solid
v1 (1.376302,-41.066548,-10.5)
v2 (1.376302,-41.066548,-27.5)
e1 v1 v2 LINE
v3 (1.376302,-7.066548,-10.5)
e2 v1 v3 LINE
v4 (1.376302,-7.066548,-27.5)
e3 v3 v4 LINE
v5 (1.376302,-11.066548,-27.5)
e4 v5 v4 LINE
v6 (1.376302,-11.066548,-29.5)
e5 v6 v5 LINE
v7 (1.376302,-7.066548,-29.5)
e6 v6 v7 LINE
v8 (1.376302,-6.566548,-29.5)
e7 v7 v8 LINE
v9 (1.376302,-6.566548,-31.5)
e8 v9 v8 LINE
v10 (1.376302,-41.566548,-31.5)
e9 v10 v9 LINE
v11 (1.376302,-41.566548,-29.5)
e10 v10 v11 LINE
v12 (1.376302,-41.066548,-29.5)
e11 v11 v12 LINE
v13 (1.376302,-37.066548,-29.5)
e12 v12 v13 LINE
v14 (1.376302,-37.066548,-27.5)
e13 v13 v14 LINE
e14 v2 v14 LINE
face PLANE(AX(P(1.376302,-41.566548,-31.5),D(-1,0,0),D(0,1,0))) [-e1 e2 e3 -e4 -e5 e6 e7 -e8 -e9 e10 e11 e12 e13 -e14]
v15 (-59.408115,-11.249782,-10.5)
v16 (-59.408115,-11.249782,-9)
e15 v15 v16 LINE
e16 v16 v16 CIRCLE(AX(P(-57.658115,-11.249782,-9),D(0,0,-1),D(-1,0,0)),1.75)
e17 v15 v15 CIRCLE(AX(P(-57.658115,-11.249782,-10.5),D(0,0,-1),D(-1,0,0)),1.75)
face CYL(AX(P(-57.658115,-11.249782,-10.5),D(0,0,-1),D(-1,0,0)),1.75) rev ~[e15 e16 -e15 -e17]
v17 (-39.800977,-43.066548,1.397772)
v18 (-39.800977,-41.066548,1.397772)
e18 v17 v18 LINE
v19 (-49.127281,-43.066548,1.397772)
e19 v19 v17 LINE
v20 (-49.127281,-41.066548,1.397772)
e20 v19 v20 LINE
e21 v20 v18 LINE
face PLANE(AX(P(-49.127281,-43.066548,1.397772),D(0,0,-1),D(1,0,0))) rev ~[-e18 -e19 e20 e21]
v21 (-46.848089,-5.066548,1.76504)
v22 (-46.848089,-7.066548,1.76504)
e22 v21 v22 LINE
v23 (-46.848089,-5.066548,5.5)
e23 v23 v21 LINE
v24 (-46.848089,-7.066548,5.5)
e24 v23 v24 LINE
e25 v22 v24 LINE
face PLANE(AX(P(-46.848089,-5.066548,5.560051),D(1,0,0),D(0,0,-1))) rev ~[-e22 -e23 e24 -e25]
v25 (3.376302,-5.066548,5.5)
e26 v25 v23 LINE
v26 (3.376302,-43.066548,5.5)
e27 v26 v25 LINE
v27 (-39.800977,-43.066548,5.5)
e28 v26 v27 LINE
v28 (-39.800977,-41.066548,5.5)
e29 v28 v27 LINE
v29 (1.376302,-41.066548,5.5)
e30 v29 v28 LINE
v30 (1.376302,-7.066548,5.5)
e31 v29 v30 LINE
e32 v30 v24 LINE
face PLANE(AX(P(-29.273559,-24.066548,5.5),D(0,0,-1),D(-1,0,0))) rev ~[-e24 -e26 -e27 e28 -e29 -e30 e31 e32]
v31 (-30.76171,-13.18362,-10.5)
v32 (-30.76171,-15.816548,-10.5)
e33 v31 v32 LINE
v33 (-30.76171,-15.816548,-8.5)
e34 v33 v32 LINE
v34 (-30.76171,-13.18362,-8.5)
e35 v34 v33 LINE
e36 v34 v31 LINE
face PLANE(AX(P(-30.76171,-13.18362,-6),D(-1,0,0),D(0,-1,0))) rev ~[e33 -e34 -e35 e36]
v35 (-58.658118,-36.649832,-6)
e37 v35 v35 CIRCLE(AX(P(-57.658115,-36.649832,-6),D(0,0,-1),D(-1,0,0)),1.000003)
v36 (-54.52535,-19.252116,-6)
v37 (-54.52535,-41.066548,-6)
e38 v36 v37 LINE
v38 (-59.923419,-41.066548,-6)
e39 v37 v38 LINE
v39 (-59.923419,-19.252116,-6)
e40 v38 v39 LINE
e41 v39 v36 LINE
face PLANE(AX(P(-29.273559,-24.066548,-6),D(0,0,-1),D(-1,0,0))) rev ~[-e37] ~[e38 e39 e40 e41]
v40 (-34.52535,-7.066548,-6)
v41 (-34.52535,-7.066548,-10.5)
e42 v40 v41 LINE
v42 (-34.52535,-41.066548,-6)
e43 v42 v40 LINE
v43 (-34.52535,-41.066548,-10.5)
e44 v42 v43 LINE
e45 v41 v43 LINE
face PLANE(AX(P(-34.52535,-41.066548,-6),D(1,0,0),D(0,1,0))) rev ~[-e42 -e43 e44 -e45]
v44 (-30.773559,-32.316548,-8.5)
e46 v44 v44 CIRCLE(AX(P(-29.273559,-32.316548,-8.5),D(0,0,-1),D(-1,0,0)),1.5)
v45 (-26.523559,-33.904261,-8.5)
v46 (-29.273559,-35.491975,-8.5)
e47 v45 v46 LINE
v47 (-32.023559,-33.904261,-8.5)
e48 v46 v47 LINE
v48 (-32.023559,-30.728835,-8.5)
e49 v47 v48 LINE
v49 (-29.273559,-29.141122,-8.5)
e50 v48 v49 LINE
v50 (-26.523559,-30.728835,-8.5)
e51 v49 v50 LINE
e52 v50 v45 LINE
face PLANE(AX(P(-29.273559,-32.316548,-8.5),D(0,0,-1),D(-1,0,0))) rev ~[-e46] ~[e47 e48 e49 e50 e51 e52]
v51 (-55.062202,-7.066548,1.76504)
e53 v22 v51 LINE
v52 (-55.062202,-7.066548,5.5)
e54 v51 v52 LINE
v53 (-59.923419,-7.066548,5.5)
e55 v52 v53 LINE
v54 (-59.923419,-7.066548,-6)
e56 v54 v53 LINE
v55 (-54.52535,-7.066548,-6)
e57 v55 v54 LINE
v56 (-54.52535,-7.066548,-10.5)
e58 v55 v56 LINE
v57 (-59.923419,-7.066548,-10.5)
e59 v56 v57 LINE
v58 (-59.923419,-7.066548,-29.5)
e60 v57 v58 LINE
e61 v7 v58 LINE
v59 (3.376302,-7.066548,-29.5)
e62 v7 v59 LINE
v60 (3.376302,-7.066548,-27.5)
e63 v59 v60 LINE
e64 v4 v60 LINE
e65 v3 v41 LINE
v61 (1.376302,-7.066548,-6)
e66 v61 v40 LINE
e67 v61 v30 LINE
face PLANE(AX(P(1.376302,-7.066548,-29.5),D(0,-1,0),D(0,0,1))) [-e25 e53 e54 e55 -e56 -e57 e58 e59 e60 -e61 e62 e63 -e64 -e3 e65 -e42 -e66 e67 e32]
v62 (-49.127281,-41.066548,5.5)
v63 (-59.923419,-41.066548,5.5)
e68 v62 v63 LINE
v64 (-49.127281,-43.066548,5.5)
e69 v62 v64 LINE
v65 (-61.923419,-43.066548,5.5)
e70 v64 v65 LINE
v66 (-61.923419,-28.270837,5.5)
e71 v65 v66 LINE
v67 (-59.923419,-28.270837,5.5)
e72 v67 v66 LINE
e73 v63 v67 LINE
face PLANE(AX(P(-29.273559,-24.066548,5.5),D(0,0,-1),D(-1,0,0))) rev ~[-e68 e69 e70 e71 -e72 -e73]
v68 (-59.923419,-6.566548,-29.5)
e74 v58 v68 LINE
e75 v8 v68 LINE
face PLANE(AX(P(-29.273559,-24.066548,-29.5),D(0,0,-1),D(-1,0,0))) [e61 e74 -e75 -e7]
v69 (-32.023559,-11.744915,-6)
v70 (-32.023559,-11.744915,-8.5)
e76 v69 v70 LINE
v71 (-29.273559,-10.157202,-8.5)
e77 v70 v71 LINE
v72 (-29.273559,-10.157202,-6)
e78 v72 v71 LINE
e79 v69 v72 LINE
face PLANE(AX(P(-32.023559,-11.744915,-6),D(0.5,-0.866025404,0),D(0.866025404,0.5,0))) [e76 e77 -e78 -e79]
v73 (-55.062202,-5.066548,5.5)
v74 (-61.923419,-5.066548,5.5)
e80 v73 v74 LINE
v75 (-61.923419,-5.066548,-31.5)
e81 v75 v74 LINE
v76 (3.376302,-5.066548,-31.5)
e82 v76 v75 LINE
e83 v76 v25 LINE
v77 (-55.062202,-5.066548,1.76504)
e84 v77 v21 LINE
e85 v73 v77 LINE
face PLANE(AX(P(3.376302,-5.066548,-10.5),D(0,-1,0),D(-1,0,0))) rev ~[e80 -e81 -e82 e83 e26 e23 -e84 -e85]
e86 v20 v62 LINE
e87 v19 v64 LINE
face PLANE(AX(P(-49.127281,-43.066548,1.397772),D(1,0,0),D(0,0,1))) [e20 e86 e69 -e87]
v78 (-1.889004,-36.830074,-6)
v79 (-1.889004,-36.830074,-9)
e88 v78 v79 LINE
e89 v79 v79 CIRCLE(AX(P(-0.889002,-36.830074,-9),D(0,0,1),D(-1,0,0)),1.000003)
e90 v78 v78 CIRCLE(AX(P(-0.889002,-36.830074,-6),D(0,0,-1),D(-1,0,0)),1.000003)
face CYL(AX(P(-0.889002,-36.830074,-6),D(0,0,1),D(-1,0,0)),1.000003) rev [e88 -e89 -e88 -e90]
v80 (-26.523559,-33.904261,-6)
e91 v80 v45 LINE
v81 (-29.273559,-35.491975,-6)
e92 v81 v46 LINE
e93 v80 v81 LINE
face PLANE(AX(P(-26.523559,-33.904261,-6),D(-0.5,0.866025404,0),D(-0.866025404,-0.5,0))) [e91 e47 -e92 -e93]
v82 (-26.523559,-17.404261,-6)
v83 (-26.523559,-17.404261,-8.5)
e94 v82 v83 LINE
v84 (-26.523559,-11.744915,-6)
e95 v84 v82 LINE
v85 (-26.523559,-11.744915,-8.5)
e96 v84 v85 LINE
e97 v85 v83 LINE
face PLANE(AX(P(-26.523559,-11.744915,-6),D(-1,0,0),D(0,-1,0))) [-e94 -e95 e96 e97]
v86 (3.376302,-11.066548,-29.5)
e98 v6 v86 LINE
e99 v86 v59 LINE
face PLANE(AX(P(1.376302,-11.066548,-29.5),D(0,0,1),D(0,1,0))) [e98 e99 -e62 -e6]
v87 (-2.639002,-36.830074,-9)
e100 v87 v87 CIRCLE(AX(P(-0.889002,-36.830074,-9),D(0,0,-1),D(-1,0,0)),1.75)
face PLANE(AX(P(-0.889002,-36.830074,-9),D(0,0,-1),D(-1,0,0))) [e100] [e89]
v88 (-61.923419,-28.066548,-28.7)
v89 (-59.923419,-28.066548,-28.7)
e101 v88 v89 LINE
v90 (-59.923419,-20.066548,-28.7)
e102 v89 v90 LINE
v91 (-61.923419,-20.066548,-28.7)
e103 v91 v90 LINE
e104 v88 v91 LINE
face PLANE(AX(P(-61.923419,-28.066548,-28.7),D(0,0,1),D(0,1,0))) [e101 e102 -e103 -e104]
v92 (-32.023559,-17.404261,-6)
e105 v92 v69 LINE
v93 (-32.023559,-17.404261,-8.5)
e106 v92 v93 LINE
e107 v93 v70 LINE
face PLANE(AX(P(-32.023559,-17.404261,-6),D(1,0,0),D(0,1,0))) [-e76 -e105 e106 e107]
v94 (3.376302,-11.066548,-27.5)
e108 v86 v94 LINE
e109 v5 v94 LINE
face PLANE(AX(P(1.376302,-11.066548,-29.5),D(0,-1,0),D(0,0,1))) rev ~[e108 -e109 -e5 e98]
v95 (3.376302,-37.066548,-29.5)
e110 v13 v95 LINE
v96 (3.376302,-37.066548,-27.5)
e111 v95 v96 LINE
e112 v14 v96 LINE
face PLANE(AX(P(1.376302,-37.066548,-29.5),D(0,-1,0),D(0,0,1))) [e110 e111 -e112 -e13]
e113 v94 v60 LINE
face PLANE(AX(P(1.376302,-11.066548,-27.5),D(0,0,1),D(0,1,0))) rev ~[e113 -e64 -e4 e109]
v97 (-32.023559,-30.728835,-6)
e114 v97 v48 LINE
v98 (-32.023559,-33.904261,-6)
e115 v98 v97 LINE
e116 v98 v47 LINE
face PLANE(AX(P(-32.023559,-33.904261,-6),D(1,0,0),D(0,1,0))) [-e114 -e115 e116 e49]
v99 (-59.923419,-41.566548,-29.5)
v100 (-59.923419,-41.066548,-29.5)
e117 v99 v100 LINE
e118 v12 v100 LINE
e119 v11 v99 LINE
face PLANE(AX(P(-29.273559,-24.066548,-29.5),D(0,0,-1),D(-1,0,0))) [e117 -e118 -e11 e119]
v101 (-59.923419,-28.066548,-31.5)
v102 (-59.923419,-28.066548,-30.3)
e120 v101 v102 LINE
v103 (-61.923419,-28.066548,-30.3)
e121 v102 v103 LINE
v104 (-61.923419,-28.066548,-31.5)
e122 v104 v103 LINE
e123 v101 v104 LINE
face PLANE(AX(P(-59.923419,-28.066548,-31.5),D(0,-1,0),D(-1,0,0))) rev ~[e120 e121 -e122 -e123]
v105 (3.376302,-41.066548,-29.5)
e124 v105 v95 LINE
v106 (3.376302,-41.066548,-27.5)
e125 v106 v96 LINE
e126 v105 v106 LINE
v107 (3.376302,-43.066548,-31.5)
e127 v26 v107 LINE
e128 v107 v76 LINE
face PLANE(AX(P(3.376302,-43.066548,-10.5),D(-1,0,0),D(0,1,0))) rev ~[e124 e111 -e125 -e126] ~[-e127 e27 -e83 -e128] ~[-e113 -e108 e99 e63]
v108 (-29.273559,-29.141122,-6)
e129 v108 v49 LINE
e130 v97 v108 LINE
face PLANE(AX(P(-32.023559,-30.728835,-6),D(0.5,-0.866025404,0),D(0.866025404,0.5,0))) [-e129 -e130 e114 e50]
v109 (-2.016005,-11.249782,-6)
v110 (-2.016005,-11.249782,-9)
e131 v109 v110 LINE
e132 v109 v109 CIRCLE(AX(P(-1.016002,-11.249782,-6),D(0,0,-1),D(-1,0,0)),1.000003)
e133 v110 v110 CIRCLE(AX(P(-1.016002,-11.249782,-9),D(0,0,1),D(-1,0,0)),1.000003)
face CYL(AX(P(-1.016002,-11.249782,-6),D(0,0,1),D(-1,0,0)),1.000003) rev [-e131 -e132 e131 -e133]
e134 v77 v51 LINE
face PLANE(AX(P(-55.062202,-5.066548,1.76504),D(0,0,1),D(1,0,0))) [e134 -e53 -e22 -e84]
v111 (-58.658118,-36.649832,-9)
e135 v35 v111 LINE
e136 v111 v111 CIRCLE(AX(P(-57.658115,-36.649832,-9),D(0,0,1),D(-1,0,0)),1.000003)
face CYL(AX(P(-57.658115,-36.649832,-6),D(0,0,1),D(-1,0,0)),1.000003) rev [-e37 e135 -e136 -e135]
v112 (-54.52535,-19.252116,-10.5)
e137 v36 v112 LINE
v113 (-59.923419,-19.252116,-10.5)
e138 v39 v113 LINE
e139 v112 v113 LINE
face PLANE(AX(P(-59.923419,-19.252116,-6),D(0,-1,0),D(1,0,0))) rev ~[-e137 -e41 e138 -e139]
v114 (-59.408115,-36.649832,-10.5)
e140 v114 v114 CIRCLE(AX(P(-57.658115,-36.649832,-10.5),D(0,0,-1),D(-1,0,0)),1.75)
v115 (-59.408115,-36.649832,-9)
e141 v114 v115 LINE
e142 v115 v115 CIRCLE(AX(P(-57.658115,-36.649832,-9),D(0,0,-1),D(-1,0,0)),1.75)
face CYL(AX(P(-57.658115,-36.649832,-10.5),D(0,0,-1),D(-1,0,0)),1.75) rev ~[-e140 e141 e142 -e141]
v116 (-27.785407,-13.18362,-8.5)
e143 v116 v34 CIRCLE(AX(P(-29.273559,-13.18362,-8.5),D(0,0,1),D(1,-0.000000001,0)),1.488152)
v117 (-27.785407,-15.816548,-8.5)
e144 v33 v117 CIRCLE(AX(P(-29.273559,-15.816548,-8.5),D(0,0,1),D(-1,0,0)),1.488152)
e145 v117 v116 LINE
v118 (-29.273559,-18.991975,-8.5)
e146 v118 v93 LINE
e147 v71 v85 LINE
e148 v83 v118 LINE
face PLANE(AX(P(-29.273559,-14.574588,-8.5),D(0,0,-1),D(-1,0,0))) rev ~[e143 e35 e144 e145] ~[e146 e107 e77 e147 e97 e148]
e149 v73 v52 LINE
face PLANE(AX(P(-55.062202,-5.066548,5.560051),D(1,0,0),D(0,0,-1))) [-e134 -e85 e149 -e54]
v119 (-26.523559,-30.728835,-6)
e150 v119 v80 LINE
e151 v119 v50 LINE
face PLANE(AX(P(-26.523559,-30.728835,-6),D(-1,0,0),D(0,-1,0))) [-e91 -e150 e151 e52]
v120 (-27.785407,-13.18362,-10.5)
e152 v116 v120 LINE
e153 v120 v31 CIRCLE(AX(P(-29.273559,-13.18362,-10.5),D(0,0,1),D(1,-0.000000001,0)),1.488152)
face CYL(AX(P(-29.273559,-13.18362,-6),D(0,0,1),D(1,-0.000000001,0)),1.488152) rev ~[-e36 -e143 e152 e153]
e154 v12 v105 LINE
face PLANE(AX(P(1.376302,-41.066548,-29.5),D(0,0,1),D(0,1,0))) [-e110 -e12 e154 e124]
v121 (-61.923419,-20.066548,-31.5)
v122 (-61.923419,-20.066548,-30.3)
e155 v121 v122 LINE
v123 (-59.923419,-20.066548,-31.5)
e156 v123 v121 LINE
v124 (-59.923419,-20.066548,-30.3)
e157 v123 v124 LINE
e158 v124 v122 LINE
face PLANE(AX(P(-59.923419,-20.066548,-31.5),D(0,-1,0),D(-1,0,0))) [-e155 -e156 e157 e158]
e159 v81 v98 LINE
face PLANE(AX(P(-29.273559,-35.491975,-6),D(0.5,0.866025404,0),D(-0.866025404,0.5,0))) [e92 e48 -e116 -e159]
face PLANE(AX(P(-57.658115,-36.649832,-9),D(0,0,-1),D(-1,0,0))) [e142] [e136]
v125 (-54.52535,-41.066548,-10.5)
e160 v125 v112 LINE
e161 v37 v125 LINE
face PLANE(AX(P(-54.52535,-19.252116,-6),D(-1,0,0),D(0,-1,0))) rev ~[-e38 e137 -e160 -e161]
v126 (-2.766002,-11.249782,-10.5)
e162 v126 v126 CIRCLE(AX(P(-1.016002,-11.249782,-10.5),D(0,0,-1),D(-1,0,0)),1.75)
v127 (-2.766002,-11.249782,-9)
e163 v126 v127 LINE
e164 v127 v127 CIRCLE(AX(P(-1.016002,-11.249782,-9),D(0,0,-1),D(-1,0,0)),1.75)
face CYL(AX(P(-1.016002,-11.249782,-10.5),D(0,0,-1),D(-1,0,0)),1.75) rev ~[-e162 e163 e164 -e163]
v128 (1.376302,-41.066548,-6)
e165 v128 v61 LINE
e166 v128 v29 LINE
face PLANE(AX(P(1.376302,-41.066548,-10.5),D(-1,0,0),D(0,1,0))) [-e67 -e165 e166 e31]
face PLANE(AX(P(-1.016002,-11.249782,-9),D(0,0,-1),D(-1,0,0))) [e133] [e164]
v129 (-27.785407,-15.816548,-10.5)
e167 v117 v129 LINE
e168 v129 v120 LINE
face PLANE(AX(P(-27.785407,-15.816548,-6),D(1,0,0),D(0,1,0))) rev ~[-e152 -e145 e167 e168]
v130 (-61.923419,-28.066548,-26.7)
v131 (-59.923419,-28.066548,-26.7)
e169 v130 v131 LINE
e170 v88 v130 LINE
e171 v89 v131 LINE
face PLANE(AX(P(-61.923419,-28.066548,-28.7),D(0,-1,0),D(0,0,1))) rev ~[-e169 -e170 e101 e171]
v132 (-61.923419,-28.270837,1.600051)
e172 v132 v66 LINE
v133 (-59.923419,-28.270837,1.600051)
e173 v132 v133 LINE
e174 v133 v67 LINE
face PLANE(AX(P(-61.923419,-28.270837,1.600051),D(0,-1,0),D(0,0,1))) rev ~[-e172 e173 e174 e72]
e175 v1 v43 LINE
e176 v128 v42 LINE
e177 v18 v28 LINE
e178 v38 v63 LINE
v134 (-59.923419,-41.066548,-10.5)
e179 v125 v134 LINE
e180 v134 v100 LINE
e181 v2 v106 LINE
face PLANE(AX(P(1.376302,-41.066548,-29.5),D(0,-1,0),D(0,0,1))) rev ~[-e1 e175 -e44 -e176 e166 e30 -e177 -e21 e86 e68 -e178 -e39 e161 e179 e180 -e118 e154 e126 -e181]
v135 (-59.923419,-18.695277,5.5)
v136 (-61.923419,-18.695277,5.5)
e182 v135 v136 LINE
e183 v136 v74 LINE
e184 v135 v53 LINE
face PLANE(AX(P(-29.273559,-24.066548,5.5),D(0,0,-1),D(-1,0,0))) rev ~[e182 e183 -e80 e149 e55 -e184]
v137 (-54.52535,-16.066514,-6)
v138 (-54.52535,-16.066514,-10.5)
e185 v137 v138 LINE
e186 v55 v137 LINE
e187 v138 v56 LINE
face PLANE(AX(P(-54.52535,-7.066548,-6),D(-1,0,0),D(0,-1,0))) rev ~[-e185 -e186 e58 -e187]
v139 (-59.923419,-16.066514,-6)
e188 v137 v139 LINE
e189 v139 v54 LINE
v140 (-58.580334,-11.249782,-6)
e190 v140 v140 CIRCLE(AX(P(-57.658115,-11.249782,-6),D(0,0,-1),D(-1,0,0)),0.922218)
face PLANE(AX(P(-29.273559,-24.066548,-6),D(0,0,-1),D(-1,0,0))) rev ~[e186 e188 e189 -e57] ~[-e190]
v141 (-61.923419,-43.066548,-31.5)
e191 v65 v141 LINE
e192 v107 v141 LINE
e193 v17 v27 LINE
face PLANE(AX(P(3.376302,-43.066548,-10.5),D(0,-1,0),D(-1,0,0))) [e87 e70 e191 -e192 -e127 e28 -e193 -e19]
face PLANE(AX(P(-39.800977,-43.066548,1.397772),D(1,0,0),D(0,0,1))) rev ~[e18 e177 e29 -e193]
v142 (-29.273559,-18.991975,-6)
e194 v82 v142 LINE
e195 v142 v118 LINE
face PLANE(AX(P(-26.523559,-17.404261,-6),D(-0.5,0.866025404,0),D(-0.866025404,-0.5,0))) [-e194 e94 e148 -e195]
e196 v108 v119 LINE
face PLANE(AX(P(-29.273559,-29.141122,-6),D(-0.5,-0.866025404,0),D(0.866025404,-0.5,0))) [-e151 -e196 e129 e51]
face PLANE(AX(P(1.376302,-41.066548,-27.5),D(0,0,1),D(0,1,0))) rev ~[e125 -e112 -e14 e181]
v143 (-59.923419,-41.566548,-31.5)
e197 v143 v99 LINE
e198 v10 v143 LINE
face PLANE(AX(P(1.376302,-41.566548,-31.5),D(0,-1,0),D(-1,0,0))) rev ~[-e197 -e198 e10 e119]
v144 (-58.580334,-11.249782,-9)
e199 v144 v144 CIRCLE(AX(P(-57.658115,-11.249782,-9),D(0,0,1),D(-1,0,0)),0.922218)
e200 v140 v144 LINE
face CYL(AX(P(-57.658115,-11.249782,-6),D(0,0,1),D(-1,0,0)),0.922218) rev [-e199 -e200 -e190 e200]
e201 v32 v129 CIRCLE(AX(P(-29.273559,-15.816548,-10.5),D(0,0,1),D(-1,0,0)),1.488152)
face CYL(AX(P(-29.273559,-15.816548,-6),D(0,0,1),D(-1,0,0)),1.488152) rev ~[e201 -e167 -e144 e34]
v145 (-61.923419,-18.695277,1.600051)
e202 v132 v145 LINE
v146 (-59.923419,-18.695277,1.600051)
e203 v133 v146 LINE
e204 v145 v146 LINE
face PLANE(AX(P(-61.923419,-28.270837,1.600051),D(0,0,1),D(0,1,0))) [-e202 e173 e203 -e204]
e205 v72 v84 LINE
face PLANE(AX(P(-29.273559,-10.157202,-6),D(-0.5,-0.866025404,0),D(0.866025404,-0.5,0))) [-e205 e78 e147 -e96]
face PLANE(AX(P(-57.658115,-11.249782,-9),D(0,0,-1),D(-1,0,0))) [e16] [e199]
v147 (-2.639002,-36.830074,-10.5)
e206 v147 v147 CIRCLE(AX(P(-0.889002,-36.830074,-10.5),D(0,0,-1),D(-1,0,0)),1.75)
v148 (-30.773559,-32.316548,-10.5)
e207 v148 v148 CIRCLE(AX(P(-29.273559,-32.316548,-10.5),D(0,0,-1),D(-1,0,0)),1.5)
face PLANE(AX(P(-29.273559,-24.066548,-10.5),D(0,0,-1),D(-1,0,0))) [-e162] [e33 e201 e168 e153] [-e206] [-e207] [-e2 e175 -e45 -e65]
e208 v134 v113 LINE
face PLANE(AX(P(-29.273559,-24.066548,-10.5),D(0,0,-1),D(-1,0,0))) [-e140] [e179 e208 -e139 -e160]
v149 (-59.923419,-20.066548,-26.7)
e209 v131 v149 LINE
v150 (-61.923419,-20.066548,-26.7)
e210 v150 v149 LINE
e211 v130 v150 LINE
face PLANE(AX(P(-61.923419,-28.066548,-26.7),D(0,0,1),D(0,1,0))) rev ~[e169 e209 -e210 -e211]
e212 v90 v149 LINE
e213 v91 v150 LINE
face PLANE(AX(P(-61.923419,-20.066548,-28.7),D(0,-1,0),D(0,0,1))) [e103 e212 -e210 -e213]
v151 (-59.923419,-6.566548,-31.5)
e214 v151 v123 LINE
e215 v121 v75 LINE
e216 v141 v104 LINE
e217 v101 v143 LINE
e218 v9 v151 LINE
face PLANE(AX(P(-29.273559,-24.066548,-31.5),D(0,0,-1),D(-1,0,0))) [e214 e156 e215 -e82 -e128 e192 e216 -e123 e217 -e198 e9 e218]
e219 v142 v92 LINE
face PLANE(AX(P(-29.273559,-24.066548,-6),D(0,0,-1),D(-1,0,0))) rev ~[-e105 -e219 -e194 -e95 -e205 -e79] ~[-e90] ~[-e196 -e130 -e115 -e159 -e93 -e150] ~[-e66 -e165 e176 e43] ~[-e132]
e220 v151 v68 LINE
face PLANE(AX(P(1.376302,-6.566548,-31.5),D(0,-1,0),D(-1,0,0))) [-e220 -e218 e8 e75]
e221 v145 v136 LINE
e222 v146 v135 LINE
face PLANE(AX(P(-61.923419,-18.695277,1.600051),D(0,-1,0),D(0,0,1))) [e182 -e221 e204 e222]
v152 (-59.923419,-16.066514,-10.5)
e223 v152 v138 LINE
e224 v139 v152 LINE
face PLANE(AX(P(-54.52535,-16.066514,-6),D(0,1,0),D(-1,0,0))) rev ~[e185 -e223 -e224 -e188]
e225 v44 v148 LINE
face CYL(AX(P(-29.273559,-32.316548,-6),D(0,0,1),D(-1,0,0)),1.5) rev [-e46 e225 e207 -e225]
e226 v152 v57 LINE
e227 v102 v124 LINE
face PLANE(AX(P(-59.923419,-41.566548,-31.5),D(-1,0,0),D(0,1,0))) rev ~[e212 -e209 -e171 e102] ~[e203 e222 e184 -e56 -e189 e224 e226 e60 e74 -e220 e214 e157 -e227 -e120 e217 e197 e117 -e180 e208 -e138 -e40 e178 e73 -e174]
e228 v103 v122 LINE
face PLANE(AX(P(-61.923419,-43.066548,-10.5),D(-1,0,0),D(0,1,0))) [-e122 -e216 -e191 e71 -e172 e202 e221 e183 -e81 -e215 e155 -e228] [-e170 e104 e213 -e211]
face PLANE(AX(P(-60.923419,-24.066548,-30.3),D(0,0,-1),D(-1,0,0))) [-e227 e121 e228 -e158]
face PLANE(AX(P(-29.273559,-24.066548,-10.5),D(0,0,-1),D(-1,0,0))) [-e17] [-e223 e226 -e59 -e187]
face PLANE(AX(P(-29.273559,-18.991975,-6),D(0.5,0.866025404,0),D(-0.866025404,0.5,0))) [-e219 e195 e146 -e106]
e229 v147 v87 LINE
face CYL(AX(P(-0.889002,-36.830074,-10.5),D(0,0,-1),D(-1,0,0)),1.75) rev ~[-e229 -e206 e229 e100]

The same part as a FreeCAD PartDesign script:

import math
import FreeCAD as App
import Part
import Sketcher
from FreeCAD import Vector
Q = App.Units.Quantity

doc = App.newDocument("Part")
params = doc.addObject("Spreadsheet::Sheet", "Params")
for row, (alias, value) in enumerate([
    ("sketch1_diameter", "3 mm"),
    ("sketch1_height", "38 mm"),
    ("pad1_length", "4.5 mm"),
    ("sketch2_diameter", "3 mm"),
    ("pocket1_length", "2.5 mm"),
    ("sketch3_height", "38 mm"),
    ("sketch3_height2", "34 mm"),
    ("pad2_length", "21 mm"),
    ("pad2_length2", "16 mm"),
    ("pocket2_length", "3 mm"),
    ("sketch5_height", "4 mm"),
    ("pocket3_length", "3 mm"),
    ("pocket4_length", "3 mm"),
    ("sketch7_width", "20 mm"),
    ("sketch7_height", "34 mm"),
    ("pocket5_length", "10 mm"),
    ("sketch8_diameter", "3.5 mm"),
    ("pocket6_length", "1.5 mm"),
    ("sketch9_height", "35 mm"),
    ("pocket7_length", "2 mm"),
    ("sketch10_width", "4 mm"),
    ("sketch10_height", "2 mm"),
    ("pocket8_length", "2 mm"),
    ("sketch11_width", "2 mm"),
    ("sketch11_height", "8 mm"),
    ("pocket9_length", "1.2 mm"),
    ("sketch12_width", "8 mm"),
    ("sketch12_height", "2 mm"),
    ("pocket10_length", "2 mm"),
], start=1):
    params.set(f"A{row}", alias)
    params.set(f"B{row}", "=" + value)
    params.setAlias(f"B{row}", alias)

body = doc.addObject("PartDesign::Body", "Body")

# Sketch on XY plane
sketch1 = body.newObject("Sketcher::SketchObject", "Sketch")
sketch1.AttachmentSupport = (doc.getObject("XY_Plane"), [""])
sketch1.MapMode = "FlatFace"
sketch1.AttachmentOffset = App.Placement(Vector(0, 0, -6), App.Rotation())
sketch1.addGeometry([
    Part.LineSegment(Vector(3.376302, -5.066548, 0), Vector(3.376302, -43.066548, 0)),  # 0
    Part.LineSegment(Vector(3.376302, -43.066548, 0), Vector(-61.923419, -43.066548, 0)),  # 1
    Part.LineSegment(Vector(-61.923419, -43.066548, 0), Vector(-61.923419, -5.066548, 0)),  # 2
    Part.LineSegment(Vector(-61.923419, -5.066548, 0), Vector(3.376302, -5.066548, 0)),  # 3
    Part.Circle(Vector(-0.889002, -36.830074, 0), Vector(0, 0, 1), 1.000003),  # 4
    Part.Circle(Vector(-29.273559, -32.316548, 0), Vector(0, 0, 1), 1.5),  # 5
    Part.Circle(Vector(-57.658115, -36.649832, 0), Vector(0, 0, 1), 1.000003),  # 6
    Part.Circle(Vector(-1.016002, -11.249782, 0), Vector(0, 0, 1), 1.000003),  # 7
    Part.ArcOfCircle(Part.Circle(Vector(-29.273559, -15.816548, 0), Vector(0, 0, 1), 1.488152), math.radians(180), math.radians(360)),  # 8
    Part.LineSegment(Vector(-27.785407, -15.816548, 0), Vector(-27.785407, -13.18362, 0)),  # 9
    Part.ArcOfCircle(Part.Circle(Vector(-29.273559, -13.18362, 0), Vector(0, 0, 1), 1.488152), math.radians(0), math.radians(180)),  # 10
    Part.LineSegment(Vector(-30.76171, -13.18362, 0), Vector(-30.76171, -15.816548, 0)),  # 11
    Part.Circle(Vector(-57.658115, -11.249782, 0), Vector(0, 0, 1), 0.922218),  # 12
], False)
sketch1.addConstraint([
    Sketcher.Constraint("Coincident", 0, 2, 1, 1),
    Sketcher.Constraint("Coincident", 1, 2, 2, 1),
    Sketcher.Constraint("Coincident", 2, 2, 3, 1),
    Sketcher.Constraint("Coincident", 3, 2, 0, 1),
    Sketcher.Constraint("Tangent", 8, 2, 9, 1),
    Sketcher.Constraint("Tangent", 9, 2, 10, 1),
    Sketcher.Constraint("Tangent", 10, 2, 11, 1),
    Sketcher.Constraint("Tangent", 11, 2, 8, 1),
    Sketcher.Constraint("Vertical", 0),
    Sketcher.Constraint("Horizontal", 1),
    Sketcher.Constraint("Vertical", 2),
    Sketcher.Constraint("Horizontal", 3),
    Sketcher.Constraint("Vertical", 9),
    Sketcher.Constraint("Vertical", 11),
    Sketcher.Constraint("Equal", 4, 6),
    Sketcher.Constraint("Equal", 6, 7),
    Sketcher.Constraint("Horizontal", 7, 3, 12, 3),
    Sketcher.Constraint("Vertical", 5, 3, 8, 3),
    Sketcher.Constraint("Vertical", 6, 3, 12, 3),
    Sketcher.Constraint("Diameter", 5, Q("3 mm")),
    Sketcher.Constraint("DistanceY", 0, 2, 0, 1, Q("38 mm")),
    Sketcher.Constraint("DistanceY", 5, 3, 8, 3, Q("16.5 mm")),
    Sketcher.Constraint("Radius", 8, Q("1.488152 mm")),
    Sketcher.Constraint("DistanceY", 0, 2, 5, 3, Q("10.75 mm")),
    Sketcher.Constraint("Diameter", 4, Q("2.000005 mm")),
    Sketcher.Constraint("Diameter", 12, Q("1.844437 mm")),
    Sketcher.Constraint("DistanceX", 4, 3, -1, 1, Q("0.889002 mm")),
    Sketcher.Constraint("DistanceX", 7, 3, 4, 3, Q("0.127 mm")),
    Sketcher.Constraint("DistanceX", 1, 2, 1, 1, Q("65.299721 mm")),
    Sketcher.Constraint("DistanceY", 9, 1, 9, 2, Q("2.632928 mm")),
    Sketcher.Constraint("DistanceX", -1, 1, 0, 2, Q("3.376302 mm")),
    Sketcher.Constraint("DistanceX", 5, 3, -1, 1, Q("29.273559 mm")),
    Sketcher.Constraint("DistanceY", 5, 3, -1, 1, Q("32.316548 mm")),
    Sketcher.Constraint("DistanceY", 7, 3, -1, 1, Q("11.249782 mm")),
    Sketcher.Constraint("DistanceY", 4, 3, 6, 3, Q("0.180241 mm")),
    Sketcher.Constraint("DistanceY", 6, 3, 7, 3, Q("25.400051 mm")),
    Sketcher.Constraint("DistanceX", 12, 3, 8, 2, Q("29.872708 mm")),
])
sketch1.setExpression("Constraints[19]", "Params.sketch1_diameter")
sketch1.setExpression("Constraints[20]", "Params.sketch1_height")
pad1 = body.newObject("PartDesign::Pad", "Pad")
pad1.Profile = sketch1
pad1.setExpression("Length", "Params.pad1_length")
pad1.Reversed = True

# Sketch on XY plane
sketch2 = body.newObject("Sketcher::SketchObject", "Sketch001")
sketch2.AttachmentSupport = (doc.getObject("XY_Plane"), [""])
sketch2.MapMode = "FlatFace"
sketch2.AttachmentOffset = App.Placement(Vector(0, 0, -6), App.Rotation())
sketch2.addGeometry([
    Part.LineSegment(Vector(-29.273559, -18.991975, 0), Vector(-32.023559, -17.404261, 0)),  # 0
    Part.LineSegment(Vector(-32.023559, -17.404261, 0), Vector(-32.023559, -11.744915, 0)),  # 1
    Part.LineSegment(Vector(-32.023559, -11.744915, 0), Vector(-29.273559, -10.157202, 0)),  # 2
    Part.LineSegment(Vector(-29.273559, -10.157202, 0), Vector(-26.523559, -11.744915, 0)),  # 3
    Part.LineSegment(Vector(-26.523559, -11.744915, 0), Vector(-26.523559, -17.404261, 0)),  # 4
    Part.LineSegment(Vector(-26.523559, -17.404261, 0), Vector(-29.273559, -18.991975, 0)),  # 5
    Part.LineSegment(Vector(-30.76171, -13.18362, 0), Vector(-30.76171, -15.816548, 0)),  # 6
    Part.ArcOfCircle(Part.Circle(Vector(-29.273559, -15.816548, 0), Vector(0, 0, 1), 1.488152), math.radians(180), math.radians(360)),  # 7
    Part.LineSegment(Vector(-27.785407, -15.816548, 0), Vector(-27.785407, -13.18362, 0)),  # 8
    Part.ArcOfCircle(Part.Circle(Vector(-29.273559, -13.18362, 0), Vector(0, 0, 1), 1.488152), math.radians(0), math.radians(180)),  # 9
    Part.LineSegment(Vector(-26.523559, -30.728835, 0), Vector(-26.523559, -33.904261, 0)),  # 10
    Part.LineSegment(Vector(-26.523559, -33.904261, 0), Vector(-29.273559, -35.491975, 0)),  # 11
    Part.LineSegment(Vector(-29.273559, -35.491975, 0), Vector(-32.023559, -33.904261, 0)),  # 12
    Part.LineSegment(Vector(-32.023559, -33.904261, 0), Vector(-32.023559, -30.728835, 0)),  # 13
    Part.LineSegment(Vector(-32.023559, -30.728835, 0), Vector(-29.273559, -29.141122, 0)),  # 14
    Part.LineSegment(Vector(-29.273559, -29.141122, 0), Vector(-26.523559, -30.728835, 0)),  # 15
    Part.Circle(Vector(-29.273559, -32.316548, 0), Vector(0, 0, 1), 1.5),  # 16
], False)
sketch2.addConstraint([
    Sketcher.Constraint("Coincident", 0, 2, 1, 1),
    Sketcher.Constraint("Coincident", 1, 2, 2, 1),
    Sketcher.Constraint("Coincident", 2, 2, 3, 1),
    Sketcher.Constraint("Coincident", 3, 2, 4, 1),
    Sketcher.Constraint("Coincident", 4, 2, 5, 1),
    Sketcher.Constraint("Coincident", 5, 2, 0, 1),
    Sketcher.Constraint("Tangent", 6, 2, 7, 1),
    Sketcher.Constraint("Tangent", 7, 2, 8, 1),
    Sketcher.Constraint("Tangent", 8, 2, 9, 1),
    Sketcher.Constraint("Tangent", 9, 2, 6, 1),
    Sketcher.Constraint("Coincident", 10, 2, 11, 1),
    Sketcher.Constraint("Coincident", 11, 2, 12, 1),
    Sketcher.Constraint("Coincident", 12, 2, 13, 1),
    Sketcher.Constraint("Coincident", 13, 2, 14, 1),
    Sketcher.Constraint("Coincident", 14, 2, 15, 1),
    Sketcher.Constraint("Coincident", 15, 2, 10, 1),
    Sketcher.Constraint("Vertical", 1),
    Sketcher.Constraint("Vertical", 4),
    Sketcher.Constraint("Vertical", 6),
    Sketcher.Constraint("Vertical", 8),
    Sketcher.Constraint("Vertical", 10),
    Sketcher.Constraint("Vertical", 13),
    Sketcher.Constraint("Parallel", 0, 3),
    Sketcher.Constraint("Parallel", 2, 5),
    Sketcher.Constraint("Parallel", 5, 11),
    Sketcher.Constraint("Parallel", 3, 12),
    Sketcher.Constraint("Parallel", 11, 14),
    Sketcher.Constraint("Parallel", 12, 15),
    Sketcher.Constraint("Horizontal", 1, 2, 3, 2),
    Sketcher.Constraint("Horizontal", 0, 2, 4, 2),
    Sketcher.Constraint("Horizontal", 10, 2, 12, 2),
    Sketcher.Constraint("Horizontal", 13, 2, 15, 2),
    Sketcher.Constraint("Vertical", 9, 3, 16, 3),
    Sketcher.Constraint("Vertical", 16, 3, 2, 2),
    Sketcher.Constraint("Vertical", 2, 2, 5, 2),
    Sketcher.Constraint("Vertical", 4, 2, 10, 2),
    Sketcher.Constraint("Vertical", 5, 2, 11, 2),
    Sketcher.Constraint("Diameter", 16, Q("3 mm")),
    Sketcher.Constraint("Angle", 0, Q("150 deg")),
    Sketcher.Constraint("DistanceY", 16, 3, 7, 3, Q("16.5 mm")),
    Sketcher.Constraint("DistanceX", 1, 2, 3, 2, Q("5.5 mm")),
    Sketcher.Constraint("DistanceY", 10, 2, 4, 2, Q("16.5 mm")),
    Sketcher.Constraint("Radius", 7, Q("1.488152 mm")),
    Sketcher.Constraint("DistanceY", 6, 2, 6, 1, Q("2.632928 mm")),
    Sketcher.Constraint("DistanceY", 2, 2, -1, 1, Q("10.157202 mm")),
    Sketcher.Constraint("DistanceY", 1, 1, 1, 2, Q("5.659346 mm")),
    Sketcher.Constraint("DistanceY", 10, 2, 10, 1, Q("3.175426 mm")),
    Sketcher.Constraint("DistanceX", 7, 3, -1, 1, Q("29.273559 mm")),
    Sketcher.Constraint("DistanceY", 7, 3, -1, 1, Q("15.816548 mm")),
])
sketch2.setExpression("Constraints[37]", "Params.sketch2_diameter")
pocket1 = body.newObject("PartDesign::Pocket", "Pocket")
pocket1.Profile = sketch2
pocket1.setExpression("Length", "Params.pocket1_length")

# Sketch on XY plane
sketch3 = body.newObject("Sketcher::SketchObject", "Sketch002")
sketch3.AttachmentSupport = (doc.getObject("XY_Plane"), [""])
sketch3.MapMode = "FlatFace"
sketch3.AttachmentOffset = App.Placement(Vector(0, 0, -10.5), App.Rotation())
sketch3.addGeometry([
    Part.LineSegment(Vector(3.376302, -5.066548, 0), Vector(3.376302, -43.066548, 0)),  # 0
    Part.LineSegment(Vector(3.376302, -43.066548, 0), Vector(-61.923419, -43.066548, 0)),  # 1
    Part.LineSegment(Vector(-61.923419, -43.066548, 0), Vector(-61.923419, -5.066548, 0)),  # 2
    Part.LineSegment(Vector(-61.923419, -5.066548, 0), Vector(3.376302, -5.066548, 0)),  # 3
    Part.LineSegment(Vector(-59.923419, -41.066548, 0), Vector(1.376302, -41.066548, 0)),  # 4
    Part.LineSegment(Vector(1.376302, -41.066548, 0), Vector(1.376302, -7.066548, 0)),  # 5
    Part.LineSegment(Vector(1.376302, -7.066548, 0), Vector(-59.923419, -7.066548, 0)),  # 6
    Part.LineSegment(Vector(-59.923419, -7.066548, 0), Vector(-59.923419, -41.066548, 0)),  # 7
], False)
sketch3.addConstraint([
    Sketcher.Constraint("Coincident", 0, 2, 1, 1),
    Sketcher.Constraint("Coincident", 1, 2, 2, 1),
    Sketcher.Constraint("Coincident", 2, 2, 3, 1),
    Sketcher.Constraint("Coincident", 3, 2, 0, 1),
    Sketcher.Constraint("Coincident", 4, 2, 5, 1),
    Sketcher.Constraint("Coincident", 5, 2, 6, 1),
    Sketcher.Constraint("Coincident", 6, 2, 7, 1),
    Sketcher.Constraint("Coincident", 7, 2, 4, 1),
    Sketcher.Constraint("Vertical", 0),
    Sketcher.Constraint("Horizontal", 1),
    Sketcher.Constraint("Vertical", 2),
    Sketcher.Constraint("Horizontal", 3),
    Sketcher.Constraint("Horizontal", 4),
    Sketcher.Constraint("Vertical", 5),
    Sketcher.Constraint("Horizontal", 6),
    Sketcher.Constraint("Vertical", 7),
    Sketcher.Constraint("DistanceY", 0, 2, 0, 1, Q("38 mm")),
    Sketcher.Constraint("DistanceY", 5, 1, 5, 2, Q("34 mm")),
    Sketcher.Constraint("DistanceX", 4, 2, 0, 2, Q("2 mm")),
    Sketcher.Constraint("DistanceY", 0, 2, 4, 2, Q("2 mm")),
    Sketcher.Constraint("DistanceX", 2, 2, 6, 2, Q("2 mm")),
    Sketcher.Constraint("DistanceX", 1, 2, 1, 1, Q("65.299721 mm")),
    Sketcher.Constraint("DistanceX", -1, 1, 0, 2, Q("3.376302 mm")),
    Sketcher.Constraint("DistanceY", 0, 2, -1, 1, Q("43.066548 mm")),
])
sketch3.setExpression("Constraints[16]", "Params.sketch3_height")
sketch3.setExpression("Constraints[17]", "Params.sketch3_height2")
pad2 = body.newObject("PartDesign::Pad", "Pad001")
pad2.Profile = sketch3
pad2.Type = "TwoLengths"
pad2.setExpression("Length", "Params.pad2_length")
pad2.setExpression("Length2", "Params.pad2_length2")
pad2.Reversed = True

# Sketch on XZ plane
sketch4 = body.newObject("Sketcher::SketchObject", "Sketch003")
sketch4.AttachmentSupport = (doc.getObject("XZ_Plane"), [""])
sketch4.MapMode = "FlatFace"
sketch4.AttachmentOffset = App.Placement(Vector(0, 0, 5.066548), App.Rotation())
sketch4.addGeometry([
    Part.LineSegment(Vector(-55.062202, 1.76504, 0), Vector(-55.062202, 5.560051, 0)),
    Part.LineSegment(Vector(-55.062202, 5.560051, 0), Vector(-46.848089, 5.560051, 0)),
    Part.LineSegment(Vector(-46.848089, 5.560051, 0), Vector(-46.848089, 1.76504, 0)),
    Part.LineSegment(Vector(-46.848089, 1.76504, 0), Vector(-55.062202, 1.76504, 0)),
], False)
sketch4.addConstraint([
    Sketcher.Constraint("Coincident", 0, 2, 1, 1),
    Sketcher.Constraint("Coincident", 1, 2, 2, 1),
    Sketcher.Constraint("Coincident", 2, 2, 3, 1),
    Sketcher.Constraint("Coincident", 3, 2, 0, 1),
    Sketcher.Constraint("Vertical", 0),
    Sketcher.Constraint("Horizontal", 1),
    Sketcher.Constraint("Vertical", 2),
    Sketcher.Constraint("Horizontal", 3),
    Sketcher.Constraint("DistanceY", 0, 1, 0, 2, Q("3.795011 mm")),
    Sketcher.Constraint("DistanceX", 0, 2, -1, 1, Q("55.062202 mm")),
    Sketcher.Constraint("DistanceX", 1, 1, 1, 2, Q("8.214113 mm")),
    Sketcher.Constraint("DistanceY", -1, 1, 0, 2, Q("5.560051 mm")),
])
pocket2 = body.newObject("PartDesign::Pocket", "Pocket001")
pocket2.Profile = sketch4
pocket2.setExpression("Length", "Params.pocket2_length")
pocket2.Reversed = True

# Sketch on YZ plane
sketch5 = body.newObject("Sketcher::SketchObject", "Sketch004")
sketch5.AttachmentSupport = (doc.getObject("YZ_Plane"), [""])
sketch5.MapMode = "FlatFace"
sketch5.AttachmentOffset = App.Placement(Vector(0, 0, -61.923419), App.Rotation())
sketch5.addGeometry([
    Part.LineSegment(Vector(-18.695277, 1.600051, 0), Vector(-28.270837, 1.600051, 0)),
    Part.LineSegment(Vector(-28.270837, 1.600051, 0), Vector(-28.270837, 5.600051, 0)),
    Part.LineSegment(Vector(-28.270837, 5.600051, 0), Vector(-18.695277, 5.600051, 0)),
    Part.LineSegment(Vector(-18.695277, 5.600051, 0), Vector(-18.695277, 1.600051, 0)),
], False)
sketch5.addConstraint([
    Sketcher.Constraint("Coincident", 0, 2, 1, 1),
    Sketcher.Constraint("Coincident", 1, 2, 2, 1),
    Sketcher.Constraint("Coincident", 2, 2, 3, 1),
    Sketcher.Constraint("Coincident", 3, 2, 0, 1),
    Sketcher.Constraint("Horizontal", 0),
    Sketcher.Constraint("Vertical", 1),
    Sketcher.Constraint("Horizontal", 2),
    Sketcher.Constraint("Vertical", 3),
    Sketcher.Constraint("DistanceY", 1, 1, 1, 2, Q("4 mm")),
    Sketcher.Constraint("DistanceX", 0, 2, 0, 1, Q("9.575559 mm")),
    Sketcher.Constraint("DistanceY", -1, 1, 0, 2, Q("1.600051 mm")),
    Sketcher.Constraint("DistanceX", 0, 2, -1, 1, Q("28.270837 mm")),
])
sketch5.setExpression("Constraints[8]", "Params.sketch5_height")
pocket3 = body.newObject("PartDesign::Pocket", "Pocket002")
pocket3.Profile = sketch5
pocket3.setExpression("Length", "Params.pocket3_length")
pocket3.Reversed = True

# Sketch on XZ plane
sketch6 = body.newObject("Sketcher::SketchObject", "Sketch005")
sketch6.AttachmentSupport = (doc.getObject("XZ_Plane"), [""])
sketch6.MapMode = "FlatFace"
sketch6.AttachmentOffset = App.Placement(Vector(0, 0, 43.066548), App.Rotation())
sketch6.addGeometry([
    Part.LineSegment(Vector(-49.127281, 5.600051, 0), Vector(-49.127281, 1.397772, 0)),
    Part.LineSegment(Vector(-49.127281, 1.397772, 0), Vector(-39.800977, 1.397772, 0)),
    Part.LineSegment(Vector(-39.800977, 1.397772, 0), Vector(-39.800977, 5.600051, 0)),
    Part.LineSegment(Vector(-39.800977, 5.600051, 0), Vector(-49.127281, 5.600051, 0)),
], False)
sketch6.addConstraint([
    Sketcher.Constraint("Coincident", 0, 2, 1, 1),
    Sketcher.Constraint("Coincident", 1, 2, 2, 1),
    Sketcher.Constraint("Coincident", 2, 2, 3, 1),
    Sketcher.Constraint("Coincident", 3, 2, 0, 1),
    Sketcher.Constraint("Vertical", 0),
    Sketcher.Constraint("Horizontal", 1),
    Sketcher.Constraint("Vertical", 2),
    Sketcher.Constraint("Horizontal", 3),
    Sketcher.Constraint("DistanceY", 0, 2, 0, 1, Q("4.202279 mm")),
    Sketcher.Constraint("DistanceX", 1, 1, 1, 2, Q("9.326304 mm")),
    Sketcher.Constraint("DistanceX", 0, 2, -1, 1, Q("49.127281 mm")),
    Sketcher.Constraint("DistanceY", -1, 1, 0, 2, Q("1.397772 mm")),
])
pocket4 = body.newObject("PartDesign::Pocket", "Pocket003")
pocket4.Profile = sketch6
pocket4.setExpression("Length", "Params.pocket4_length")

# Sketch on XY plane
sketch7 = body.newObject("Sketcher::SketchObject", "Sketch006")
sketch7.AttachmentSupport = (doc.getObject("XY_Plane"), [""])
sketch7.MapMode = "FlatFace"
sketch7.AttachmentOffset = App.Placement(Vector(0, 0, -6), App.Rotation())
sketch7.addGeometry([
    Part.LineSegment(Vector(-59.923419, -16.066514, 0), Vector(-59.923419, -19.252116, 0)),  # 0
    Part.LineSegment(Vector(-59.923419, -19.252116, 0), Vector(-54.52535, -19.252116, 0)),  # 1
    Part.LineSegment(Vector(-54.52535, -19.252116, 0), Vector(-54.52535, -41.066548, 0)),  # 2
    Part.LineSegment(Vector(-54.52535, -41.066548, 0), Vector(-34.52535, -41.066548, 0)),  # 3
    Part.LineSegment(Vector(-34.52535, -41.066548, 0), Vector(-34.52535, -7.066548, 0)),  # 4
    Part.LineSegment(Vector(-34.52535, -7.066548, 0), Vector(-54.52535, -7.066548, 0)),  # 5
    Part.LineSegment(Vector(-54.52535, -7.066548, 0), Vector(-54.52535, -16.066514, 0)),  # 6
    Part.LineSegment(Vector(-54.52535, -16.066514, 0), Vector(-59.923419, -16.066514, 0)),  # 7
], False)
sketch7.addConstraint([
    Sketcher.Constraint("Coincident", 0, 2, 1, 1),
    Sketcher.Constraint("Coincident", 1, 2, 2, 1),
    Sketcher.Constraint("Coincident", 2, 2, 3, 1),
    Sketcher.Constraint("Coincident", 3, 2, 4, 1),
    Sketcher.Constraint("Coincident", 4, 2, 5, 1),
    Sketcher.Constraint("Coincident", 5, 2, 6, 1),
    Sketcher.Constraint("Coincident", 6, 2, 7, 1),
    Sketcher.Constraint("Coincident", 7, 2, 0, 1),
    Sketcher.Constraint("Vertical", 0),
    Sketcher.Constraint("Horizontal", 1),
    Sketcher.Constraint("Vertical", 2),
    Sketcher.Constraint("Horizontal", 3),
    Sketcher.Constraint("Vertical", 4),
    Sketcher.Constraint("Horizontal", 5),
    Sketcher.Constraint("Vertical", 6),
    Sketcher.Constraint("Horizontal", 7),
    Sketcher.Constraint("Vertical", 2, 2, 5, 2),
    Sketcher.Constraint("DistanceX", 3, 1, 3, 2, Q("20 mm")),
    Sketcher.Constraint("DistanceY", 4, 1, 4, 2, Q("34 mm")),
    Sketcher.Constraint("DistanceY", 0, 2, 0, 1, Q("3.185602 mm")),
    Sketcher.Constraint("DistanceX", 1, 1, 1, 2, Q("5.398069 mm")),
    Sketcher.Constraint("DistanceY", 2, 2, 2, 1, Q("21.814432 mm")),
    Sketcher.Constraint("DistanceX", 0, 2, -1, 1, Q("59.923419 mm")),
    Sketcher.Constraint("DistanceY", 2, 2, -1, 1, Q("41.066548 mm")),
])
sketch7.setExpression("Constraints[17]", "Params.sketch7_width")
sketch7.setExpression("Constraints[18]", "Params.sketch7_height")
pocket5 = body.newObject("PartDesign::Pocket", "Pocket004")
pocket5.Profile = sketch7
pocket5.setExpression("Length", "Params.pocket5_length")

# Sketch on XY plane
sketch8 = body.newObject("Sketcher::SketchObject", "Sketch007")
sketch8.AttachmentSupport = (doc.getObject("XY_Plane"), [""])
sketch8.MapMode = "FlatFace"
sketch8.AttachmentOffset = App.Placement(Vector(0, 0, -10.5), App.Rotation())
sketch8.addGeometry([
    Part.Circle(Vector(-1.016002, -11.249782, 0), Vector(0, 0, 1), 1.75),
    Part.Circle(Vector(-57.658115, -11.249782, 0), Vector(0, 0, 1), 1.75),
    Part.Circle(Vector(-0.889002, -36.830074, 0), Vector(0, 0, 1), 1.75),
    Part.Circle(Vector(-57.658115, -36.649832, 0), Vector(0, 0, 1), 1.75),
], False)
sketch8.addConstraint([
    Sketcher.Constraint("Equal", 0, 1),
    Sketcher.Constraint("Equal", 1, 2),
    Sketcher.Constraint("Equal", 2, 3),
    Sketcher.Constraint("Horizontal", 0, 3, 1, 3),
    Sketcher.Constraint("Vertical", 1, 3, 3, 3),
    Sketcher.Constraint("Diameter", 0, Q("3.5 mm")),
    Sketcher.Constraint("DistanceX", 2, 3, -1, 1, Q("0.889002 mm")),
    Sketcher.Constraint("DistanceX", 0, 3, 2, 3, Q("0.127 mm")),
    Sketcher.Constraint("DistanceY", 0, 3, -1, 1, Q("11.249782 mm")),
    Sketcher.Constraint("DistanceY", 3, 3, 1, 3, Q("25.400051 mm")),
    Sketcher.Constraint("DistanceY", 2, 3, 3, 3, Q("0.180241 mm")),
    Sketcher.Constraint("DistanceX", 1, 3, -1, 1, Q("57.658115 mm")),
])
sketch8.setExpression("Constraints[5]", "Params.sketch8_diameter")
pocket6 = body.newObject("PartDesign::Pocket", "Pocket005")
pocket6.Profile = sketch8
pocket6.setExpression("Length", "Params.pocket6_length")
pocket6.Reversed = True

# Sketch on XY plane
sketch9 = body.newObject("Sketcher::SketchObject", "Sketch008")
sketch9.AttachmentSupport = (doc.getObject("XY_Plane"), [""])
sketch9.MapMode = "FlatFace"
sketch9.AttachmentOffset = App.Placement(Vector(0, 0, -31.5), App.Rotation())
sketch9.addGeometry([
    Part.LineSegment(Vector(1.376302, -6.566548, 0), Vector(1.376302, -41.566548, 0)),
    Part.LineSegment(Vector(1.376302, -41.566548, 0), Vector(-59.923419, -41.566548, 0)),
    Part.LineSegment(Vector(-59.923419, -41.566548, 0), Vector(-59.923419, -6.566548, 0)),
    Part.LineSegment(Vector(-59.923419, -6.566548, 0), Vector(1.376302, -6.566548, 0)),
], False)
sketch9.addConstraint([
    Sketcher.Constraint("Coincident", 0, 2, 1, 1),
    Sketcher.Constraint("Coincident", 1, 2, 2, 1),
    Sketcher.Constraint("Coincident", 2, 2, 3, 1),
    Sketcher.Constraint("Coincident", 3, 2, 0, 1),
    Sketcher.Constraint("Vertical", 0),
    Sketcher.Constraint("Horizontal", 1),
    Sketcher.Constraint("Vertical", 2),
    Sketcher.Constraint("Horizontal", 3),
    Sketcher.Constraint("DistanceY", 0, 2, 0, 1, Q("35 mm")),
    Sketcher.Constraint("DistanceX", 1, 2, 1, 1, Q("61.299721 mm")),
    Sketcher.Constraint("DistanceX", -1, 1, 0, 2, Q("1.376302 mm")),
    Sketcher.Constraint("DistanceY", 0, 2, -1, 1, Q("41.566548 mm")),
])
sketch9.setExpression("Constraints[8]", "Params.sketch9_height")
pocket7 = body.newObject("PartDesign::Pocket", "Pocket006")
pocket7.Profile = sketch9
pocket7.setExpression("Length", "Params.pocket7_length")
pocket7.Reversed = True

# Sketch on YZ plane
sketch10 = body.newObject("Sketcher::SketchObject", "Sketch009")
sketch10.AttachmentSupport = (doc.getObject("YZ_Plane"), [""])
sketch10.MapMode = "FlatFace"
sketch10.AttachmentOffset = App.Placement(Vector(0, 0, 1.376302), App.Rotation())
sketch10.addGeometry([
    Part.LineSegment(Vector(-7.066548, -29.5, 0), Vector(-11.066548, -29.5, 0)),  # 0
    Part.LineSegment(Vector(-11.066548, -29.5, 0), Vector(-11.066548, -27.5, 0)),  # 1
    Part.LineSegment(Vector(-11.066548, -27.5, 0), Vector(-7.066548, -27.5, 0)),  # 2
    Part.LineSegment(Vector(-7.066548, -27.5, 0), Vector(-7.066548, -29.5, 0)),  # 3
    Part.LineSegment(Vector(-37.066548, -29.5, 0), Vector(-41.066548, -29.5, 0)),  # 4
    Part.LineSegment(Vector(-41.066548, -29.5, 0), Vector(-41.066548, -27.5, 0)),  # 5
    Part.LineSegment(Vector(-41.066548, -27.5, 0), Vector(-37.066548, -27.5, 0)),  # 6
    Part.LineSegment(Vector(-37.066548, -27.5, 0), Vector(-37.066548, -29.5, 0)),  # 7
], False)
sketch10.addConstraint([
    Sketcher.Constraint("Coincident", 0, 2, 1, 1),
    Sketcher.Constraint("Coincident", 1, 2, 2, 1),
    Sketcher.Constraint("Coincident", 2, 2, 3, 1),
    Sketcher.Constraint("Coincident", 3, 2, 0, 1),
    Sketcher.Constraint("Coincident", 4, 2, 5, 1),
    Sketcher.Constraint("Coincident", 5, 2, 6, 1),
    Sketcher.Constraint("Coincident", 6, 2, 7, 1),
    Sketcher.Constraint("Coincident", 7, 2, 4, 1),
    Sketcher.Constraint("Horizontal", 0),
    Sketcher.Constraint("Vertical", 1),
    Sketcher.Constraint("Horizontal", 2),
    Sketcher.Constraint("Vertical", 3),
    Sketcher.Constraint("Horizontal", 4),
    Sketcher.Constraint("Vertical", 5),
    Sketcher.Constraint("Horizontal", 6),
    Sketcher.Constraint("Vertical", 7),
    Sketcher.Constraint("Horizontal", 3, 2, 4, 2),
    Sketcher.Constraint("Horizontal", 2, 2, 5, 2),
    Sketcher.Constraint("Equal", 2, 4),
    Sketcher.Constraint("DistanceX", 0, 2, 0, 1, Q("4 mm")),
    Sketcher.Constraint("DistanceY", 1, 1, 1, 2, Q("2 mm")),
    Sketcher.Constraint("DistanceX", 4, 2, 0, 2, Q("30 mm")),
    Sketcher.Constraint("DistanceY", 0, 2, -1, 1, Q("29.5 mm")),
    Sketcher.Constraint("DistanceX", 0, 2, -1, 1, Q("11.066548 mm")),
])
sketch10.setExpression("Constraints[19]", "Params.sketch10_width")
sketch10.setExpression("Constraints[20]", "Params.sketch10_height")
pocket8 = body.newObject("PartDesign::Pocket", "Pocket007")
pocket8.Profile = sketch10
pocket8.setExpression("Length", "Params.pocket8_length")
pocket8.Reversed = True

# Sketch on XY plane
sketch11 = body.newObject("Sketcher::SketchObject", "Sketch010")
sketch11.AttachmentSupport = (doc.getObject("XY_Plane"), [""])
sketch11.MapMode = "FlatFace"
sketch11.AttachmentOffset = App.Placement(Vector(0, 0, -31.5), App.Rotation())
sketch11.addGeometry([
    Part.LineSegment(Vector(-59.923419, -20.066548, 0), Vector(-59.923419, -28.066548, 0)),
    Part.LineSegment(Vector(-59.923419, -28.066548, 0), Vector(-61.923419, -28.066548, 0)),
    Part.LineSegment(Vector(-61.923419, -28.066548, 0), Vector(-61.923419, -20.066548, 0)),
    Part.LineSegment(Vector(-61.923419, -20.066548, 0), Vector(-59.923419, -20.066548, 0)),
], False)
sketch11.addConstraint([
    Sketcher.Constraint("Coincident", 0, 2, 1, 1),
    Sketcher.Constraint("Coincident", 1, 2, 2, 1),
    Sketcher.Constraint("Coincident", 2, 2, 3, 1),
    Sketcher.Constraint("Coincident", 3, 2, 0, 1),
    Sketcher.Constraint("Vertical", 0),
    Sketcher.Constraint("Horizontal", 1),
    Sketcher.Constraint("Vertical", 2),
    Sketcher.Constraint("Horizontal", 3),
    Sketcher.Constraint("DistanceX", 1, 2, 1, 1, Q("2 mm")),
    Sketcher.Constraint("DistanceY", 0, 2, 0, 1, Q("8 mm")),
    Sketcher.Constraint("DistanceX", 0, 2, -1, 1, Q("59.923419 mm")),
    Sketcher.Constraint("DistanceY", 0, 2, -1, 1, Q("28.066548 mm")),
])
sketch11.setExpression("Constraints[8]", "Params.sketch11_width")
sketch11.setExpression("Constraints[9]", "Params.sketch11_height")
pocket9 = body.newObject("PartDesign::Pocket", "Pocket008")
pocket9.Profile = sketch11
pocket9.setExpression("Length", "Params.pocket9_length")
pocket9.Reversed = True

# Sketch on YZ plane
sketch12 = body.newObject("Sketcher::SketchObject", "Sketch011")
sketch12.AttachmentSupport = (doc.getObject("YZ_Plane"), [""])
sketch12.MapMode = "FlatFace"
sketch12.AttachmentOffset = App.Placement(Vector(0, 0, -61.923419), App.Rotation())
sketch12.addGeometry([
    Part.LineSegment(Vector(-20.066548, -28.7, 0), Vector(-28.066548, -28.7, 0)),
    Part.LineSegment(Vector(-28.066548, -28.7, 0), Vector(-28.066548, -26.7, 0)),
    Part.LineSegment(Vector(-28.066548, -26.7, 0), Vector(-20.066548, -26.7, 0)),
    Part.LineSegment(Vector(-20.066548, -26.7, 0), Vector(-20.066548, -28.7, 0)),
], False)
sketch12.addConstraint([
    Sketcher.Constraint("Coincident", 0, 2, 1, 1),
    Sketcher.Constraint("Coincident", 1, 2, 2, 1),
    Sketcher.Constraint("Coincident", 2, 2, 3, 1),
    Sketcher.Constraint("Coincident", 3, 2, 0, 1),
    Sketcher.Constraint("Horizontal", 0),
    Sketcher.Constraint("Vertical", 1),
    Sketcher.Constraint("Horizontal", 2),
    Sketcher.Constraint("Vertical", 3),
    Sketcher.Constraint("DistanceX", 0, 2, 0, 1, Q("8 mm")),
    Sketcher.Constraint("DistanceY", 1, 1, 1, 2, Q("2 mm")),
    Sketcher.Constraint("DistanceY", 0, 2, -1, 1, Q("28.7 mm")),
    Sketcher.Constraint("DistanceX", 0, 2, -1, 1, Q("28.066548 mm")),
])
sketch12.setExpression("Constraints[8]", "Params.sketch12_width")
sketch12.setExpression("Constraints[9]", "Params.sketch12_height")
pocket10 = body.newObject("PartDesign::Pocket", "Pocket009")
pocket10.Profile = sketch12
pocket10.setExpression("Length", "Params.pocket10_length")
pocket10.Reversed = True

doc.recompute()
